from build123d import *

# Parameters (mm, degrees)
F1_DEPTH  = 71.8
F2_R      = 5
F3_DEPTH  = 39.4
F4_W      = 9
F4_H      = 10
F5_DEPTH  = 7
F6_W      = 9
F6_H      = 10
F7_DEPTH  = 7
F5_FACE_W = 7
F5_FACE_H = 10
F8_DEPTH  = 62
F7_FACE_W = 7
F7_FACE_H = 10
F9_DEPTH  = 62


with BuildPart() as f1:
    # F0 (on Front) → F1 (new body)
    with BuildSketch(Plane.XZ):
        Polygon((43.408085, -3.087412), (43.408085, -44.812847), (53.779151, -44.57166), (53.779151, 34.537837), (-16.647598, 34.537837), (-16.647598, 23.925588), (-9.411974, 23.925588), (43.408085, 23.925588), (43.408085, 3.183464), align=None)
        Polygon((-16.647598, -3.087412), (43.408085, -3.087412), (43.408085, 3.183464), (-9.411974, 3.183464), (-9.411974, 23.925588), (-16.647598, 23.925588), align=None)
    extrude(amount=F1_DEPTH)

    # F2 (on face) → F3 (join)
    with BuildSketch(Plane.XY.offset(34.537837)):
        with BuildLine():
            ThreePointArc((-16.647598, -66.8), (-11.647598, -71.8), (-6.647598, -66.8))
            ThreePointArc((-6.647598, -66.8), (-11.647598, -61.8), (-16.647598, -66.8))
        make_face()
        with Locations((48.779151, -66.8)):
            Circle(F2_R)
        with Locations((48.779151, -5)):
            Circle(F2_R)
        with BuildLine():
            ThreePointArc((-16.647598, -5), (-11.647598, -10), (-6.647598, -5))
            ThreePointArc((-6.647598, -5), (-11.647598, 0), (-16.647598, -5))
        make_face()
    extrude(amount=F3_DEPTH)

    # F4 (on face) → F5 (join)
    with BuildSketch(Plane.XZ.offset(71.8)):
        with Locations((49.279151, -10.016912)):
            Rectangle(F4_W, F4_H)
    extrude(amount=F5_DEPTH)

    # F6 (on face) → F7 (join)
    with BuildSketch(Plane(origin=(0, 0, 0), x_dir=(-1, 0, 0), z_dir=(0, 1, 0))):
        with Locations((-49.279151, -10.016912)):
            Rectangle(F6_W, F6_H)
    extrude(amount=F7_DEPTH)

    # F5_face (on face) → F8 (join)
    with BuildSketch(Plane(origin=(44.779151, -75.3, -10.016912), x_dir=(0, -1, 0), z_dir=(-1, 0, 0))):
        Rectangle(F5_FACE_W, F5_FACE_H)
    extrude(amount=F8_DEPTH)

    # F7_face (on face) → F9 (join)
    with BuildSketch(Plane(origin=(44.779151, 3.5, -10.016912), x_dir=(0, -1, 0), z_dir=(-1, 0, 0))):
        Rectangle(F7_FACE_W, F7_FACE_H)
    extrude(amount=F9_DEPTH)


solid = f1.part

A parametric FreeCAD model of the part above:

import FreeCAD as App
import Part
import Sketcher
Q = App.Units.Quantity

doc = App.newDocument("Part")
body = doc.addObject("PartDesign::Body", "Body")

# Sketch on XZ plane
sketch1 = doc.addObject("Sketcher::SketchObject", "Sketch")
body.addObject(sketch1)
sketch1.AttachmentSupport = (doc.XZ_Plane, [""])
sketch1.MapMode = "FlatFace"
sketch1.addGeometry([
    Part.LineSegment(App.Vector(43.408085, -44.812847, 0), App.Vector(53.779151, -44.57166, 0)),  # 0
    Part.LineSegment(App.Vector(53.779151, -44.57166, 0), App.Vector(53.779151, 34.537837, 0)),  # 1
    Part.LineSegment(App.Vector(53.779151, 34.537837, 0), App.Vector(-16.647598, 34.537837, 0)),  # 2
    Part.LineSegment(App.Vector(-16.647598, 34.537837, 0), App.Vector(-16.647598, -3.087412, 0)),  # 3
    Part.LineSegment(App.Vector(-16.647598, -3.087412, 0), App.Vector(43.408085, -3.087412, 0)),  # 4
    Part.LineSegment(App.Vector(43.408085, -3.087412, 0), App.Vector(43.408085, -44.812847, 0)),  # 5
    Part.LineSegment(App.Vector(-9.411974, 23.925588, 0), App.Vector(43.408085, 23.925588, 0)),  # 6
    Part.LineSegment(App.Vector(43.408085, 23.925588, 0), App.Vector(43.408085, 3.183464, 0)),  # 7
    Part.LineSegment(App.Vector(43.408085, 3.183464, 0), App.Vector(-9.411974, 3.183464, 0)),  # 8
    Part.LineSegment(App.Vector(-9.411974, 3.183464, 0), App.Vector(-9.411974, 23.925588, 0)),  # 9
], False)
sketch1.addConstraint([
    Sketcher.Constraint("Coincident", 0, 2, 1, 1),
    Sketcher.Constraint("Coincident", 1, 2, 2, 1),
    Sketcher.Constraint("Coincident", 2, 2, 3, 1),
    Sketcher.Constraint("Coincident", 3, 2, 4, 1),
    Sketcher.Constraint("Coincident", 4, 2, 5, 1),
    Sketcher.Constraint("Coincident", 5, 2, 0, 1),
    Sketcher.Constraint("Coincident", 6, 2, 7, 1),
    Sketcher.Constraint("Coincident", 7, 2, 8, 1),
    Sketcher.Constraint("Coincident", 8, 2, 9, 1),
    Sketcher.Constraint("Coincident", 9, 2, 6, 1),
    Sketcher.Constraint("Vertical", 1),
    Sketcher.Constraint("Horizontal", 2),
    Sketcher.Constraint("Vertical", 3),
    Sketcher.Constraint("Horizontal", 4),
    Sketcher.Constraint("Vertical", 5),
    Sketcher.Constraint("Horizontal", 6),
    Sketcher.Constraint("Vertical", 7),
    Sketcher.Constraint("Horizontal", 8),
    Sketcher.Constraint("Vertical", 9),
    Sketcher.Constraint("Vertical", 5, 2, 6, 2),
    Sketcher.Constraint("DistanceY", 4, 2, 6, 2, Q("27.013 mm")),
    Sketcher.Constraint("DistanceX", 2, 2, 2, 1, Q("70.426749 mm")),
    Sketcher.Constraint("DistanceX", 6, 1, 6, 2, Q("52.820059 mm")),
    Sketcher.Constraint("DistanceY", 3, 2, 3, 1, Q("37.625249 mm")),
    Sketcher.Constraint("Distance", 0, Q("10.37387 mm")),
    Sketcher.Constraint("DistanceX", 4, 1, 4, 2, Q("60.055683 mm")),
    Sketcher.Constraint("DistanceY", 1, 1, 1, 2, Q("79.109497 mm")),
    Sketcher.Constraint("DistanceY", 7, 2, 7, 1, Q("20.742124 mm")),
    Sketcher.Constraint("DistanceX", -1, 1, 0, 2, Q("53.779151 mm")),
    Sketcher.Constraint("DistanceY", 0, 2, -1, 1, Q("44.57166 mm")),
])
pad1 = doc.addObject("PartDesign::Pad", "Pad")
body.addObject(pad1)
pad1.Profile = sketch1
pad1.Length = 71.8

# Sketch on XY plane
sketch2 = doc.addObject("Sketcher::SketchObject", "Sketch001")
body.addObject(sketch2)
sketch2.AttachmentSupport = (doc.XY_Plane, [""])
sketch2.MapMode = "FlatFace"
sketch2.AttachmentOffset = App.Placement(App.Vector(0, 0, 34.537837), App.Rotation())
sketch2.addGeometry([
    Part.Circle(App.Vector(-12, -67, 0), App.Vector(0, 0, 1), 5),
    Part.Circle(App.Vector(49, -67, 0), App.Vector(0, 0, 1), 5),
    Part.Circle(App.Vector(49, -5, 0), App.Vector(0, 0, 1), 5),
    Part.Circle(App.Vector(-12, -5, 0), App.Vector(0, 0, 1), 5),
], False)
sketch2.addConstraint([
    Sketcher.Constraint("Equal", 0, 1),
    Sketcher.Constraint("Equal", 1, 2),
    Sketcher.Constraint("Equal", 2, 3),
    Sketcher.Constraint("Horizontal", 0, 3, 1, 3),
    Sketcher.Constraint("Horizontal", 2, 3, 3, 3),
    Sketcher.Constraint("Vertical", 1, 3, 2, 3),
    Sketcher.Constraint("Vertical", 0, 3, 3, 3),
    Sketcher.Constraint("Diameter", 0, Q("10 mm")),
    Sketcher.Constraint("DistanceY", 2, 3, -1, 1, Q("5 mm")),
    Sketcher.Constraint("DistanceY", 0, 3, -1, 1, Q("66.8 mm")),
    Sketcher.Constraint("DistanceX", -1, 1, 1, 3, Q("48.779151 mm")),
    Sketcher.Constraint("DistanceX", 0, 3, 1, 3, Q("60.426749 mm")),
])
pad2 = doc.addObject("PartDesign::Pad", "Pad001")
body.addObject(pad2)
pad2.Profile = sketch2
pad2.Length = 39.4

# Sketch on XZ plane
sketch3 = doc.addObject("Sketcher::SketchObject", "Sketch002")
body.addObject(sketch3)
sketch3.AttachmentSupport = (doc.XZ_Plane, [""])
sketch3.MapMode = "FlatFace"
sketch3.AttachmentOffset = App.Placement(App.Vector(0, 0, 71.8), App.Rotation())
sketch3.addGeometry([
    Part.LineSegment(App.Vector(45, -5, 0), App.Vector(45, -15, 0)),
    Part.LineSegment(App.Vector(45, -15, 0), App.Vector(54, -15, 0)),
    Part.LineSegment(App.Vector(54, -15, 0), App.Vector(54, -5, 0)),
    Part.LineSegment(App.Vector(54, -5, 0), App.Vector(45, -5, 0)),
], False)
sketch3.addConstraint([
    Sketcher.Constraint("Coincident", 0, 2, 1, 1),
    Sketcher.Constraint("Coincident", 1, 2, 2, 1),
    Sketcher.Constraint("Coincident", 2, 2, 3, 1),
    Sketcher.Constraint("Coincident", 3, 2, 0, 1),
    Sketcher.Constraint("Vertical", 0),
    Sketcher.Constraint("Horizontal", 1),
    Sketcher.Constraint("Vertical", 2),
    Sketcher.Constraint("Horizontal", 3),
    Sketcher.Constraint("DistanceX", 1, 1, 1, 2, Q("9 mm")),
    Sketcher.Constraint("DistanceY", 0, 2, 0, 1, Q("10 mm")),
    Sketcher.Constraint("DistanceX", -1, 1, 0, 2, Q("44.779151 mm")),
    Sketcher.Constraint("DistanceY", 2, 2, -1, 1, Q("5.016912 mm")),
])
pad3 = doc.addObject("PartDesign::Pad", "Pad002")
body.addObject(pad3)
pad3.Profile = sketch3
pad3.Length = 7

# Sketch on XZ plane
sketch4 = doc.addObject("Sketcher::SketchObject", "Sketch003")
body.addObject(sketch4)
sketch4.AttachmentSupport = (doc.XZ_Plane, [""])
sketch4.MapMode = "FlatFace"
sketch4.addGeometry([
    Part.LineSegment(App.Vector(54, -5, 0), App.Vector(54, -15, 0)),
    Part.LineSegment(App.Vector(54, -15, 0), App.Vector(45, -15, 0)),
    Part.LineSegment(App.Vector(45, -15, 0), App.Vector(45, -5, 0)),
    Part.LineSegment(App.Vector(45, -5, 0), App.Vector(54, -5, 0)),
], False)
sketch4.addConstraint([
    Sketcher.Constraint("Coincident", 0, 2, 1, 1),
    Sketcher.Constraint("Coincident", 1, 2, 2, 1),
    Sketcher.Constraint("Coincident", 2, 2, 3, 1),
    Sketcher.Constraint("Coincident", 3, 2, 0, 1),
    Sketcher.Constraint("Vertical", 0),
    Sketcher.Constraint("Horizontal", 1),
    Sketcher.Constraint("Vertical", 2),
    Sketcher.Constraint("Horizontal", 3),
    Sketcher.Constraint("DistanceX", 1, 2, 1, 1, Q("9 mm")),
    Sketcher.Constraint("DistanceY", 0, 2, 0, 1, Q("10 mm")),
    Sketcher.Constraint("DistanceX", -1, 1, 0, 2, Q("53.779151 mm")),
    Sketcher.Constraint("DistanceY", 2, 2, -1, 1, Q("5.016912 mm")),
])
pad4 = doc.addObject("PartDesign::Pad", "Pad003")
body.addObject(pad4)
pad4.Profile = sketch4
pad4.Length = 7
pad4.Reversed = True

# Sketch on YZ plane
sketch5 = doc.addObject("Sketcher::SketchObject", "Sketch004")
body.addObject(sketch5)
sketch5.AttachmentSupport = (doc.YZ_Plane, [""])
sketch5.MapMode = "FlatFace"
sketch5.AttachmentOffset = App.Placement(App.Vector(0, 0, 44.779151), App.Rotation())
sketch5.addGeometry([
    Part.LineSegment(App.Vector(-72, -5, 0), App.Vector(-72, -15, 0)),
    Part.LineSegment(App.Vector(-72, -15, 0), App.Vector(-79, -15, 0)),
    Part.LineSegment(App.Vector(-79, -15, 0), App.Vector(-79, -5, 0)),
    Part.LineSegment(App.Vector(-79, -5, 0), App.Vector(-72, -5, 0)),
], False)
sketch5.addConstraint([
    Sketcher.Constraint("Coincident", 0, 2, 1, 1),
    Sketcher.Constraint("Coincident", 1, 2, 2, 1),
    Sketcher.Constraint("Coincident", 2, 2, 3, 1),
    Sketcher.Constraint("Coincident", 3, 2, 0, 1),
    Sketcher.Constraint("Vertical", 0),
    Sketcher.Constraint("Horizontal", 1),
    Sketcher.Constraint("Vertical", 2),
    Sketcher.Constraint("Horizontal", 3),
    Sketcher.Constraint("DistanceX", 1, 2, 1, 1, Q("7 mm")),
    Sketcher.Constraint("DistanceY", 0, 2, 0, 1, Q("10 mm")),
    Sketcher.Constraint("DistanceX", 0, 2, -1, 1, Q("71.8 mm")),
    Sketcher.Constraint("DistanceY", 2, 2, -1, 1, Q("5.016912 mm")),
])
pad5 = doc.addObject("PartDesign::Pad", "Pad004")
body.addObject(pad5)
pad5.Profile = sketch5
pad5.Length = 62
pad5.Reversed = True

# Sketch on YZ plane
sketch6 = doc.addObject("Sketcher::SketchObject", "Sketch005")
body.addObject(sketch6)
sketch6.AttachmentSupport = (doc.YZ_Plane, [""])
sketch6.MapMode = "FlatFace"
sketch6.AttachmentOffset = App.Placement(App.Vector(0, 0, 44.779151), App.Rotation())
sketch6.addGeometry([
    Part.LineSegment(App.Vector(7, -5, 0), App.Vector(7, -15, 0)),
    Part.LineSegment(App.Vector(7, -15, 0), App.Vector(0, -15, 0)),
    Part.LineSegment(App.Vector(0, -15, 0), App.Vector(0, -5, 0)),
    Part.LineSegment(App.Vector(0, -5, 0), App.Vector(7, -5, 0)),
], False)
sketch6.addConstraint([
    Sketcher.Constraint("Coincident", 0, 2, 1, 1),
    Sketcher.Constraint("Coincident", 1, 2, 2, 1),
    Sketcher.Constraint("Coincident", 2, 2, 3, 1),
    Sketcher.Constraint("Coincident", 3, 2, 0, 1),
    Sketcher.Constraint("Vertical", 0),
    Sketcher.Constraint("Horizontal", 1),
    Sketcher.Constraint("Vertical", 2),
    Sketcher.Constraint("Horizontal", 3),
    Sketcher.Constraint("PointOnObject", 1, 2, -2),
    Sketcher.Constraint("DistanceX", 1, 2, 1, 1, Q("7 mm")),
    Sketcher.Constraint("DistanceY", 0, 2, 0, 1, Q("10 mm")),
    Sketcher.Constraint("DistanceY", 2, 2, -1, 1, Q("5.016912 mm")),
])
pad6 = doc.addObject("PartDesign::Pad", "Pad005")
body.addObject(pad6)
pad6.Profile = sketch6
pad6.Length = 62
pad6.Reversed = True

doc.recompute()
